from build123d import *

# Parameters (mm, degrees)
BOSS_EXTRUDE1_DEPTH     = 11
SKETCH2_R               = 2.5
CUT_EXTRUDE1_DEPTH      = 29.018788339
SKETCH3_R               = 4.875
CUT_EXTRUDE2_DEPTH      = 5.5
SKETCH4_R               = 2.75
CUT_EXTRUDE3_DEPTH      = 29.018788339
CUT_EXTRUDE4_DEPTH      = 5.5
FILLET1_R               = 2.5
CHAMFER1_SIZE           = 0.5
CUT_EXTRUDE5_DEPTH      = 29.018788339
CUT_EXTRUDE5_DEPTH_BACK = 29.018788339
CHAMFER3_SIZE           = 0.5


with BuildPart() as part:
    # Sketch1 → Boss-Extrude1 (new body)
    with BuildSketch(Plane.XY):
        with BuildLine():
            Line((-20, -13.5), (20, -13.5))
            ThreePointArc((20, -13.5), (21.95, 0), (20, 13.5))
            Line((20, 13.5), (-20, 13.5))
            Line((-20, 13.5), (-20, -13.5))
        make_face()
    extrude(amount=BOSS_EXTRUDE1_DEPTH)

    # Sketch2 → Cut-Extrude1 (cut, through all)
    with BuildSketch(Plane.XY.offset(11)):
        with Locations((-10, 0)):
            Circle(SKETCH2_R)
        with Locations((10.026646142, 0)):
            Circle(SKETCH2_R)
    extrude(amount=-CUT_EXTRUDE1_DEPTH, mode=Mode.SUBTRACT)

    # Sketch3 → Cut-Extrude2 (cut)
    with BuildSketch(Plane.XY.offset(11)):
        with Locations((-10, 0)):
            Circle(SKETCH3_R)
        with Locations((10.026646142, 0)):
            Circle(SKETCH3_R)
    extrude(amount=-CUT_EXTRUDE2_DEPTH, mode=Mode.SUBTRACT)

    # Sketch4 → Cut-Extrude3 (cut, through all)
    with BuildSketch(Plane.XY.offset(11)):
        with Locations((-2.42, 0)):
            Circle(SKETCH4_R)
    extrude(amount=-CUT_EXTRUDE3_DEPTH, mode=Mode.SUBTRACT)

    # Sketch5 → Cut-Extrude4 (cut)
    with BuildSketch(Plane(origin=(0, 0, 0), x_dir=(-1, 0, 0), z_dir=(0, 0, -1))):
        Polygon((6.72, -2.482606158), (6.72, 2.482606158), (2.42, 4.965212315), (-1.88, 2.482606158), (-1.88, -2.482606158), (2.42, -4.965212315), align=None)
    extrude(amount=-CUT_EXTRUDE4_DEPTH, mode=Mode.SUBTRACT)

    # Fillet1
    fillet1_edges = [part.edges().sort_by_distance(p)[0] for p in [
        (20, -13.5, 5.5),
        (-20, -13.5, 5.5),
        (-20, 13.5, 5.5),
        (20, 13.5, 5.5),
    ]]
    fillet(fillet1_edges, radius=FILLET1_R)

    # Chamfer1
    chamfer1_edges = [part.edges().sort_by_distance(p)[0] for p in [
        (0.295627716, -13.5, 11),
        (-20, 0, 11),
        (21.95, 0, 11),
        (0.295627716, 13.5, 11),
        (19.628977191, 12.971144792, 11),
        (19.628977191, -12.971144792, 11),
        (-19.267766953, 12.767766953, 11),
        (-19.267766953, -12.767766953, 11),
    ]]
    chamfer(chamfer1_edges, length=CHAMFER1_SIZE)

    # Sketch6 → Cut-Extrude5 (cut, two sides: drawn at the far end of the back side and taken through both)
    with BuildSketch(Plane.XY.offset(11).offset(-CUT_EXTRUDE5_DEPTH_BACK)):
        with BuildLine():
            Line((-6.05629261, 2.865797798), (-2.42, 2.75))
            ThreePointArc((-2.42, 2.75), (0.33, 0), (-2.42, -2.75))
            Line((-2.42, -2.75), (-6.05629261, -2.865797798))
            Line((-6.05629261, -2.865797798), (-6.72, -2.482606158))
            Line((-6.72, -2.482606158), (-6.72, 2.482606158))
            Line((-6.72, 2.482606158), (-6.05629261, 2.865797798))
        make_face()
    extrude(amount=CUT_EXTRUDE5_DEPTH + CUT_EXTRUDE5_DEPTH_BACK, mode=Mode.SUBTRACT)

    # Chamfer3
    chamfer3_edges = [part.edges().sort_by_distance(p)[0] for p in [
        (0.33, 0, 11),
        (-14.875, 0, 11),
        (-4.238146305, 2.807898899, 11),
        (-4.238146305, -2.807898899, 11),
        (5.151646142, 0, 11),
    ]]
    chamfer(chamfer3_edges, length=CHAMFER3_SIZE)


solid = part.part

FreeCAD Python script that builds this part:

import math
import FreeCAD as App
import Part
import Sketcher
Q = App.Units.Quantity


def edges_at(feature, points):
    """Names of the edges that pass closest to the given points."""
    edges = feature.Shape.Edges
    near = lambda p: min(range(len(edges)), key=lambda i: edges[i].distToShape(Part.Vertex(*p))[0])
    return sorted({f"Edge{near(p) + 1}" for p in points})


def add_polygon(sketch, points):
    """Adds a closed chain of lines whose ends are joined by coincident constraints."""
    first, n = sketch.GeometryCount, len(points)
    for a, b in zip(points, points[1:] + points[:1]):
        sketch.addGeometry(Part.LineSegment(App.Vector(*a, 0), App.Vector(*b, 0)), False)
    for i in range(n):
        sketch.addConstraint(Sketcher.Constraint("Coincident", first + i, 2, first + (i + 1) % n, 1))

doc = App.newDocument("Part")
params = doc.addObject("Spreadsheet::Sheet", "Params")
for row, (alias, value) in enumerate([
    ("sketch1_width", "40 mm"),
    ("sketch1_height", "27 mm"),
    ("pad1_length", "11 mm"),
    ("sketch2_diameter", "5 mm"),
    ("sketch3_diameter", "9.75 mm"),
    ("pocket2_length", "5.5 mm"),
    ("sketch4_diameter", "5.5 mm"),
    ("pocket4_length", "5.5 mm"),
    ("fillet_radius", "2.5 mm"),
    ("chamfer_size", "0.5 mm"),
    ("sketch6_radius", "2.75 mm"),
    ("chamfer2_size", "0.5 mm"),
], start=1):
    params.set(f"A{row}", alias)
    params.set(f"B{row}", "=" + value)
    params.setAlias(f"B{row}", alias)

body = doc.addObject("PartDesign::Body", "Body")

sketch1 = body.newObject("Sketcher::SketchObject", "Sketch")
sketch1.AttachmentSupport = (doc.getObject("XY_Plane"), [""])
sketch1.MapMode = "FlatFace"
sketch1.addGeometry([
    Part.LineSegment(App.Vector(-20, -13.5, 0), App.Vector(20, -13.5, 0)),
    Part.ArcOfCircle(Part.Circle(App.Vector(-25.755769, 0, 0), App.Vector(0, 0, 1), 47.705769), math.radians(-16.438418), math.radians(16.438418)),
    Part.LineSegment(App.Vector(20, 13.5, 0), App.Vector(-20, 13.5, 0)),
    Part.LineSegment(App.Vector(-20, 13.5, 0), App.Vector(-20, -13.5, 0)),
], False)
sketch1.addConstraint([
    Sketcher.Constraint("Coincident", 0, 2, 1, 1),
    Sketcher.Constraint("Coincident", 1, 2, 2, 1),
    Sketcher.Constraint("Coincident", 2, 2, 3, 1),
    Sketcher.Constraint("Coincident", 3, 2, 0, 1),
    Sketcher.Constraint("Horizontal", 0),
    Sketcher.Constraint("Horizontal", 2),
    Sketcher.Constraint("Vertical", 3),
    Sketcher.Constraint("Symmetric", 0, 2, 2, 2, -1, 1),
    Sketcher.Constraint("PointOnObject", 1, 3, -1),
    Sketcher.Constraint("DistanceX", 0, 1, 0, 2, Q("40 mm")),
    Sketcher.Constraint("DistanceY", 3, 2, 3, 1, Q("27 mm")),
    Sketcher.Constraint("Radius", 1, Q("47.705769 mm")),
])
sketch1.setExpression("Constraints[9]", "Params.sketch1_width")
sketch1.setExpression("Constraints[10]", "Params.sketch1_height")
pad1 = body.newObject("PartDesign::Pad", "Pad")
pad1.Profile = sketch1
pad1.setExpression("Length", "Params.pad1_length")

sketch2 = body.newObject("Sketcher::SketchObject", "Sketch001")
sketch2.AttachmentSupport = (doc.getObject("XY_Plane"), [""])
sketch2.MapMode = "FlatFace"
sketch2.AttachmentOffset = App.Placement(App.Vector(0, 0, 11), App.Rotation())
sketch2.addGeometry([
    Part.Circle(App.Vector(-10, 0, 0), App.Vector(0, 0, 1), 2.5),
    Part.Circle(App.Vector(10.026646, 0, 0), App.Vector(0, 0, 1), 2.5),
], False)
sketch2.addConstraint([
    Sketcher.Constraint("Equal", 0, 1),
    Sketcher.Constraint("PointOnObject", 0, 3, -1),
    Sketcher.Constraint("PointOnObject", 1, 3, -1),
    Sketcher.Constraint("Diameter", 0, Q("5 mm")),
    Sketcher.Constraint("DistanceX", 0, 3, -1, 1, Q("10 mm")),
    Sketcher.Constraint("DistanceX", -1, 1, 1, 3, Q("10.026646 mm")),
])
sketch2.setExpression("Constraints[3]", "Params.sketch2_diameter")
pocket1 = body.newObject("PartDesign::Pocket", "Pocket")
pocket1.Profile = sketch2
pocket1.Type = "ThroughAll"

sketch3 = body.newObject("Sketcher::SketchObject", "Sketch002")
sketch3.AttachmentSupport = (doc.getObject("XY_Plane"), [""])
sketch3.MapMode = "FlatFace"
sketch3.AttachmentOffset = App.Placement(App.Vector(0, 0, 11), App.Rotation())
sketch3.addGeometry([
    Part.Circle(App.Vector(-10, 0, 0), App.Vector(0, 0, 1), 4.875),
    Part.Circle(App.Vector(10.026646, 0, 0), App.Vector(0, 0, 1), 4.875),
], False)
sketch3.addConstraint([
    Sketcher.Constraint("Equal", 0, 1),
    Sketcher.Constraint("PointOnObject", 0, 3, -1),
    Sketcher.Constraint("PointOnObject", 1, 3, -1),
    Sketcher.Constraint("Diameter", 0, Q("9.75 mm")),
    Sketcher.Constraint("DistanceX", 0, 3, -1, 1, Q("10 mm")),
    Sketcher.Constraint("DistanceX", -1, 1, 1, 3, Q("10.026646 mm")),
])
sketch3.setExpression("Constraints[3]", "Params.sketch3_diameter")
pocket2 = body.newObject("PartDesign::Pocket", "Pocket001")
pocket2.Profile = sketch3
pocket2.setExpression("Length", "Params.pocket2_length")

sketch4 = body.newObject("Sketcher::SketchObject", "Sketch003")
sketch4.AttachmentSupport = (doc.getObject("XY_Plane"), [""])
sketch4.MapMode = "FlatFace"
sketch4.AttachmentOffset = App.Placement(App.Vector(0, 0, 11), App.Rotation())
sketch4.addGeometry(Part.Circle(App.Vector(-2.42, 0, 0), App.Vector(0, 0, 1), 2.75), False)
sketch4.addConstraint([
    Sketcher.Constraint("PointOnObject", 0, 3, -1),
    Sketcher.Constraint("Diameter", 0, Q("5.5 mm")),
    Sketcher.Constraint("DistanceX", 0, 3, -1, 1, Q("2.42 mm")),
])
sketch4.setExpression("Constraints[1]", "Params.sketch4_diameter")
pocket3 = body.newObject("PartDesign::Pocket", "Pocket002")
pocket3.Profile = sketch4
pocket3.Type = "ThroughAll"

sketch5 = body.newObject("Sketcher::SketchObject", "Sketch004")
sketch5.AttachmentSupport = (doc.getObject("XY_Plane"), [""])
sketch5.MapMode = "FlatFace"
add_polygon(sketch5, [(-6.72, -2.482606), (-6.72, 2.482606), (-2.42, 4.965212), (1.88, 2.482606), (1.88, -2.482606), (-2.42, -4.965212)])
sketch5.addConstraint([
    Sketcher.Constraint("Vertical", 0),
    Sketcher.Constraint("Vertical", 3),
    Sketcher.Constraint("Symmetric", 1, 2, 4, 2, -1),
    Sketcher.Constraint("Parallel", 1, 4),
    Sketcher.Constraint("Parallel", 2, 5),
    Sketcher.Constraint("Horizontal", 0, 2, 2, 2),
    Sketcher.Constraint("Horizontal", 3, 2, 5, 2),
    Sketcher.Constraint("Angle", 1, Q("30 deg")),
    Sketcher.Constraint("DistanceX", 0, 2, 1, 2, Q("4.3 mm")),
    Sketcher.Constraint("DistanceX", 0, 2, -1, 1, Q("6.72 mm")),
    Sketcher.Constraint("DistanceY", 0, 1, 0, 2, Q("4.965212 mm")),
])
pocket4 = body.newObject("PartDesign::Pocket", "Pocket003")
pocket4.Profile = sketch5
pocket4.setExpression("Length", "Params.pocket4_length")
pocket4.Reversed = True
doc.recompute()

fillet = body.newObject("PartDesign::Fillet", "Fillet")
fillet.Base = (pocket4, edges_at(pocket4, [
    (20, -13.5, 5.5),
    (-20, -13.5, 5.5),
    (-20, 13.5, 5.5),
    (20, 13.5, 5.5),
]))
fillet.setExpression("Radius", "Params.fillet_radius")
doc.recompute()

chamfer = body.newObject("PartDesign::Chamfer", "Chamfer")
chamfer.Base = (fillet, edges_at(fillet, [
    (0.296, -13.5, 11),
    (-20, 0, 11),
    (21.95, 0, 11),
    (0.296, 13.5, 11),
    (19.629, 12.971, 11),
    (19.629, -12.971, 11),
    (-19.268, 12.768, 11),
    (-19.268, -12.768, 11),
]))
chamfer.setExpression("Size", "Params.chamfer_size")

sketch6 = body.newObject("Sketcher::SketchObject", "Sketch005")
sketch6.AttachmentSupport = (doc.getObject("XY_Plane"), [""])
sketch6.MapMode = "FlatFace"
sketch6.AttachmentOffset = App.Placement(App.Vector(0, 0, 11), App.Rotation())
sketch6.addGeometry([
    Part.LineSegment(App.Vector(-2.42, 2.75, 0), App.Vector(-6.056293, 2.865798, 0)),
    Part.LineSegment(App.Vector(-6.056293, 2.865798, 0), App.Vector(-6.72, 2.482606, 0)),
    Part.LineSegment(App.Vector(-6.72, 2.482606, 0), App.Vector(-6.72, -2.482606, 0)),
    Part.LineSegment(App.Vector(-6.72, -2.482606, 0), App.Vector(-6.056293, -2.865798, 0)),
    Part.LineSegment(App.Vector(-6.056293, -2.865798, 0), App.Vector(-2.42, -2.75, 0)),
    Part.ArcOfCircle(Part.Circle(App.Vector(-2.42, 0, 0), App.Vector(0, 0, 1), 2.75), math.radians(-90), math.radians(90)),
], False)
sketch6.addConstraint([
    Sketcher.Constraint("Coincident", 0, 2, 1, 1),
    Sketcher.Constraint("Coincident", 1, 2, 2, 1),
    Sketcher.Constraint("Coincident", 2, 2, 3, 1),
    Sketcher.Constraint("Coincident", 3, 2, 4, 1),
    Sketcher.Constraint("Coincident", 4, 2, 5, 1),
    Sketcher.Constraint("Coincident", 5, 2, 0, 1),
    Sketcher.Constraint("Vertical", 2),
    Sketcher.Constraint("Symmetric", 0, 2, 3, 2, -1),
    Sketcher.Constraint("Symmetric", 4, 2, 5, 2, -1),
    Sketcher.Constraint("Vertical", 5, 3, 4, 2),
    Sketcher.Constraint("Equal", 1, 3),
    Sketcher.Constraint("Angle", 1, Q("-150 deg")),
    Sketcher.Constraint("Radius", 5, Q("2.75 mm")),
    Sketcher.Constraint("DistanceX", 1, 2, 5, 3, Q("4.3 mm")),
    Sketcher.Constraint("DistanceX", 5, 3, -1, 1, Q("2.42 mm")),
    Sketcher.Constraint("DistanceY", 2, 2, 2, 1, Q("4.965212 mm")),
    Sketcher.Constraint("DistanceY", 1, 2, 0, 2, Q("0.383192 mm")),
])
sketch6.setExpression("Constraints[12]", "Params.sketch6_radius")
pocket5 = body.newObject("PartDesign::Pocket", "Pocket004")
pocket5.Profile = sketch6
pocket5.Type = "ThroughAll"
pocket5.Midplane = True
doc.recompute()

chamfer2 = body.newObject("PartDesign::Chamfer", "Chamfer001")
chamfer2.Base = (pocket5, edges_at(pocket5, [
    (0.33, 0, 11),
    (-14.875, 0, 11),
    (-4.238, 2.808, 11),
    (-4.238, -2.808, 11),
    (5.152, 0, 11),
]))
chamfer2.setExpression("Size", "Params.chamfer2_size")

doc.recompute()
